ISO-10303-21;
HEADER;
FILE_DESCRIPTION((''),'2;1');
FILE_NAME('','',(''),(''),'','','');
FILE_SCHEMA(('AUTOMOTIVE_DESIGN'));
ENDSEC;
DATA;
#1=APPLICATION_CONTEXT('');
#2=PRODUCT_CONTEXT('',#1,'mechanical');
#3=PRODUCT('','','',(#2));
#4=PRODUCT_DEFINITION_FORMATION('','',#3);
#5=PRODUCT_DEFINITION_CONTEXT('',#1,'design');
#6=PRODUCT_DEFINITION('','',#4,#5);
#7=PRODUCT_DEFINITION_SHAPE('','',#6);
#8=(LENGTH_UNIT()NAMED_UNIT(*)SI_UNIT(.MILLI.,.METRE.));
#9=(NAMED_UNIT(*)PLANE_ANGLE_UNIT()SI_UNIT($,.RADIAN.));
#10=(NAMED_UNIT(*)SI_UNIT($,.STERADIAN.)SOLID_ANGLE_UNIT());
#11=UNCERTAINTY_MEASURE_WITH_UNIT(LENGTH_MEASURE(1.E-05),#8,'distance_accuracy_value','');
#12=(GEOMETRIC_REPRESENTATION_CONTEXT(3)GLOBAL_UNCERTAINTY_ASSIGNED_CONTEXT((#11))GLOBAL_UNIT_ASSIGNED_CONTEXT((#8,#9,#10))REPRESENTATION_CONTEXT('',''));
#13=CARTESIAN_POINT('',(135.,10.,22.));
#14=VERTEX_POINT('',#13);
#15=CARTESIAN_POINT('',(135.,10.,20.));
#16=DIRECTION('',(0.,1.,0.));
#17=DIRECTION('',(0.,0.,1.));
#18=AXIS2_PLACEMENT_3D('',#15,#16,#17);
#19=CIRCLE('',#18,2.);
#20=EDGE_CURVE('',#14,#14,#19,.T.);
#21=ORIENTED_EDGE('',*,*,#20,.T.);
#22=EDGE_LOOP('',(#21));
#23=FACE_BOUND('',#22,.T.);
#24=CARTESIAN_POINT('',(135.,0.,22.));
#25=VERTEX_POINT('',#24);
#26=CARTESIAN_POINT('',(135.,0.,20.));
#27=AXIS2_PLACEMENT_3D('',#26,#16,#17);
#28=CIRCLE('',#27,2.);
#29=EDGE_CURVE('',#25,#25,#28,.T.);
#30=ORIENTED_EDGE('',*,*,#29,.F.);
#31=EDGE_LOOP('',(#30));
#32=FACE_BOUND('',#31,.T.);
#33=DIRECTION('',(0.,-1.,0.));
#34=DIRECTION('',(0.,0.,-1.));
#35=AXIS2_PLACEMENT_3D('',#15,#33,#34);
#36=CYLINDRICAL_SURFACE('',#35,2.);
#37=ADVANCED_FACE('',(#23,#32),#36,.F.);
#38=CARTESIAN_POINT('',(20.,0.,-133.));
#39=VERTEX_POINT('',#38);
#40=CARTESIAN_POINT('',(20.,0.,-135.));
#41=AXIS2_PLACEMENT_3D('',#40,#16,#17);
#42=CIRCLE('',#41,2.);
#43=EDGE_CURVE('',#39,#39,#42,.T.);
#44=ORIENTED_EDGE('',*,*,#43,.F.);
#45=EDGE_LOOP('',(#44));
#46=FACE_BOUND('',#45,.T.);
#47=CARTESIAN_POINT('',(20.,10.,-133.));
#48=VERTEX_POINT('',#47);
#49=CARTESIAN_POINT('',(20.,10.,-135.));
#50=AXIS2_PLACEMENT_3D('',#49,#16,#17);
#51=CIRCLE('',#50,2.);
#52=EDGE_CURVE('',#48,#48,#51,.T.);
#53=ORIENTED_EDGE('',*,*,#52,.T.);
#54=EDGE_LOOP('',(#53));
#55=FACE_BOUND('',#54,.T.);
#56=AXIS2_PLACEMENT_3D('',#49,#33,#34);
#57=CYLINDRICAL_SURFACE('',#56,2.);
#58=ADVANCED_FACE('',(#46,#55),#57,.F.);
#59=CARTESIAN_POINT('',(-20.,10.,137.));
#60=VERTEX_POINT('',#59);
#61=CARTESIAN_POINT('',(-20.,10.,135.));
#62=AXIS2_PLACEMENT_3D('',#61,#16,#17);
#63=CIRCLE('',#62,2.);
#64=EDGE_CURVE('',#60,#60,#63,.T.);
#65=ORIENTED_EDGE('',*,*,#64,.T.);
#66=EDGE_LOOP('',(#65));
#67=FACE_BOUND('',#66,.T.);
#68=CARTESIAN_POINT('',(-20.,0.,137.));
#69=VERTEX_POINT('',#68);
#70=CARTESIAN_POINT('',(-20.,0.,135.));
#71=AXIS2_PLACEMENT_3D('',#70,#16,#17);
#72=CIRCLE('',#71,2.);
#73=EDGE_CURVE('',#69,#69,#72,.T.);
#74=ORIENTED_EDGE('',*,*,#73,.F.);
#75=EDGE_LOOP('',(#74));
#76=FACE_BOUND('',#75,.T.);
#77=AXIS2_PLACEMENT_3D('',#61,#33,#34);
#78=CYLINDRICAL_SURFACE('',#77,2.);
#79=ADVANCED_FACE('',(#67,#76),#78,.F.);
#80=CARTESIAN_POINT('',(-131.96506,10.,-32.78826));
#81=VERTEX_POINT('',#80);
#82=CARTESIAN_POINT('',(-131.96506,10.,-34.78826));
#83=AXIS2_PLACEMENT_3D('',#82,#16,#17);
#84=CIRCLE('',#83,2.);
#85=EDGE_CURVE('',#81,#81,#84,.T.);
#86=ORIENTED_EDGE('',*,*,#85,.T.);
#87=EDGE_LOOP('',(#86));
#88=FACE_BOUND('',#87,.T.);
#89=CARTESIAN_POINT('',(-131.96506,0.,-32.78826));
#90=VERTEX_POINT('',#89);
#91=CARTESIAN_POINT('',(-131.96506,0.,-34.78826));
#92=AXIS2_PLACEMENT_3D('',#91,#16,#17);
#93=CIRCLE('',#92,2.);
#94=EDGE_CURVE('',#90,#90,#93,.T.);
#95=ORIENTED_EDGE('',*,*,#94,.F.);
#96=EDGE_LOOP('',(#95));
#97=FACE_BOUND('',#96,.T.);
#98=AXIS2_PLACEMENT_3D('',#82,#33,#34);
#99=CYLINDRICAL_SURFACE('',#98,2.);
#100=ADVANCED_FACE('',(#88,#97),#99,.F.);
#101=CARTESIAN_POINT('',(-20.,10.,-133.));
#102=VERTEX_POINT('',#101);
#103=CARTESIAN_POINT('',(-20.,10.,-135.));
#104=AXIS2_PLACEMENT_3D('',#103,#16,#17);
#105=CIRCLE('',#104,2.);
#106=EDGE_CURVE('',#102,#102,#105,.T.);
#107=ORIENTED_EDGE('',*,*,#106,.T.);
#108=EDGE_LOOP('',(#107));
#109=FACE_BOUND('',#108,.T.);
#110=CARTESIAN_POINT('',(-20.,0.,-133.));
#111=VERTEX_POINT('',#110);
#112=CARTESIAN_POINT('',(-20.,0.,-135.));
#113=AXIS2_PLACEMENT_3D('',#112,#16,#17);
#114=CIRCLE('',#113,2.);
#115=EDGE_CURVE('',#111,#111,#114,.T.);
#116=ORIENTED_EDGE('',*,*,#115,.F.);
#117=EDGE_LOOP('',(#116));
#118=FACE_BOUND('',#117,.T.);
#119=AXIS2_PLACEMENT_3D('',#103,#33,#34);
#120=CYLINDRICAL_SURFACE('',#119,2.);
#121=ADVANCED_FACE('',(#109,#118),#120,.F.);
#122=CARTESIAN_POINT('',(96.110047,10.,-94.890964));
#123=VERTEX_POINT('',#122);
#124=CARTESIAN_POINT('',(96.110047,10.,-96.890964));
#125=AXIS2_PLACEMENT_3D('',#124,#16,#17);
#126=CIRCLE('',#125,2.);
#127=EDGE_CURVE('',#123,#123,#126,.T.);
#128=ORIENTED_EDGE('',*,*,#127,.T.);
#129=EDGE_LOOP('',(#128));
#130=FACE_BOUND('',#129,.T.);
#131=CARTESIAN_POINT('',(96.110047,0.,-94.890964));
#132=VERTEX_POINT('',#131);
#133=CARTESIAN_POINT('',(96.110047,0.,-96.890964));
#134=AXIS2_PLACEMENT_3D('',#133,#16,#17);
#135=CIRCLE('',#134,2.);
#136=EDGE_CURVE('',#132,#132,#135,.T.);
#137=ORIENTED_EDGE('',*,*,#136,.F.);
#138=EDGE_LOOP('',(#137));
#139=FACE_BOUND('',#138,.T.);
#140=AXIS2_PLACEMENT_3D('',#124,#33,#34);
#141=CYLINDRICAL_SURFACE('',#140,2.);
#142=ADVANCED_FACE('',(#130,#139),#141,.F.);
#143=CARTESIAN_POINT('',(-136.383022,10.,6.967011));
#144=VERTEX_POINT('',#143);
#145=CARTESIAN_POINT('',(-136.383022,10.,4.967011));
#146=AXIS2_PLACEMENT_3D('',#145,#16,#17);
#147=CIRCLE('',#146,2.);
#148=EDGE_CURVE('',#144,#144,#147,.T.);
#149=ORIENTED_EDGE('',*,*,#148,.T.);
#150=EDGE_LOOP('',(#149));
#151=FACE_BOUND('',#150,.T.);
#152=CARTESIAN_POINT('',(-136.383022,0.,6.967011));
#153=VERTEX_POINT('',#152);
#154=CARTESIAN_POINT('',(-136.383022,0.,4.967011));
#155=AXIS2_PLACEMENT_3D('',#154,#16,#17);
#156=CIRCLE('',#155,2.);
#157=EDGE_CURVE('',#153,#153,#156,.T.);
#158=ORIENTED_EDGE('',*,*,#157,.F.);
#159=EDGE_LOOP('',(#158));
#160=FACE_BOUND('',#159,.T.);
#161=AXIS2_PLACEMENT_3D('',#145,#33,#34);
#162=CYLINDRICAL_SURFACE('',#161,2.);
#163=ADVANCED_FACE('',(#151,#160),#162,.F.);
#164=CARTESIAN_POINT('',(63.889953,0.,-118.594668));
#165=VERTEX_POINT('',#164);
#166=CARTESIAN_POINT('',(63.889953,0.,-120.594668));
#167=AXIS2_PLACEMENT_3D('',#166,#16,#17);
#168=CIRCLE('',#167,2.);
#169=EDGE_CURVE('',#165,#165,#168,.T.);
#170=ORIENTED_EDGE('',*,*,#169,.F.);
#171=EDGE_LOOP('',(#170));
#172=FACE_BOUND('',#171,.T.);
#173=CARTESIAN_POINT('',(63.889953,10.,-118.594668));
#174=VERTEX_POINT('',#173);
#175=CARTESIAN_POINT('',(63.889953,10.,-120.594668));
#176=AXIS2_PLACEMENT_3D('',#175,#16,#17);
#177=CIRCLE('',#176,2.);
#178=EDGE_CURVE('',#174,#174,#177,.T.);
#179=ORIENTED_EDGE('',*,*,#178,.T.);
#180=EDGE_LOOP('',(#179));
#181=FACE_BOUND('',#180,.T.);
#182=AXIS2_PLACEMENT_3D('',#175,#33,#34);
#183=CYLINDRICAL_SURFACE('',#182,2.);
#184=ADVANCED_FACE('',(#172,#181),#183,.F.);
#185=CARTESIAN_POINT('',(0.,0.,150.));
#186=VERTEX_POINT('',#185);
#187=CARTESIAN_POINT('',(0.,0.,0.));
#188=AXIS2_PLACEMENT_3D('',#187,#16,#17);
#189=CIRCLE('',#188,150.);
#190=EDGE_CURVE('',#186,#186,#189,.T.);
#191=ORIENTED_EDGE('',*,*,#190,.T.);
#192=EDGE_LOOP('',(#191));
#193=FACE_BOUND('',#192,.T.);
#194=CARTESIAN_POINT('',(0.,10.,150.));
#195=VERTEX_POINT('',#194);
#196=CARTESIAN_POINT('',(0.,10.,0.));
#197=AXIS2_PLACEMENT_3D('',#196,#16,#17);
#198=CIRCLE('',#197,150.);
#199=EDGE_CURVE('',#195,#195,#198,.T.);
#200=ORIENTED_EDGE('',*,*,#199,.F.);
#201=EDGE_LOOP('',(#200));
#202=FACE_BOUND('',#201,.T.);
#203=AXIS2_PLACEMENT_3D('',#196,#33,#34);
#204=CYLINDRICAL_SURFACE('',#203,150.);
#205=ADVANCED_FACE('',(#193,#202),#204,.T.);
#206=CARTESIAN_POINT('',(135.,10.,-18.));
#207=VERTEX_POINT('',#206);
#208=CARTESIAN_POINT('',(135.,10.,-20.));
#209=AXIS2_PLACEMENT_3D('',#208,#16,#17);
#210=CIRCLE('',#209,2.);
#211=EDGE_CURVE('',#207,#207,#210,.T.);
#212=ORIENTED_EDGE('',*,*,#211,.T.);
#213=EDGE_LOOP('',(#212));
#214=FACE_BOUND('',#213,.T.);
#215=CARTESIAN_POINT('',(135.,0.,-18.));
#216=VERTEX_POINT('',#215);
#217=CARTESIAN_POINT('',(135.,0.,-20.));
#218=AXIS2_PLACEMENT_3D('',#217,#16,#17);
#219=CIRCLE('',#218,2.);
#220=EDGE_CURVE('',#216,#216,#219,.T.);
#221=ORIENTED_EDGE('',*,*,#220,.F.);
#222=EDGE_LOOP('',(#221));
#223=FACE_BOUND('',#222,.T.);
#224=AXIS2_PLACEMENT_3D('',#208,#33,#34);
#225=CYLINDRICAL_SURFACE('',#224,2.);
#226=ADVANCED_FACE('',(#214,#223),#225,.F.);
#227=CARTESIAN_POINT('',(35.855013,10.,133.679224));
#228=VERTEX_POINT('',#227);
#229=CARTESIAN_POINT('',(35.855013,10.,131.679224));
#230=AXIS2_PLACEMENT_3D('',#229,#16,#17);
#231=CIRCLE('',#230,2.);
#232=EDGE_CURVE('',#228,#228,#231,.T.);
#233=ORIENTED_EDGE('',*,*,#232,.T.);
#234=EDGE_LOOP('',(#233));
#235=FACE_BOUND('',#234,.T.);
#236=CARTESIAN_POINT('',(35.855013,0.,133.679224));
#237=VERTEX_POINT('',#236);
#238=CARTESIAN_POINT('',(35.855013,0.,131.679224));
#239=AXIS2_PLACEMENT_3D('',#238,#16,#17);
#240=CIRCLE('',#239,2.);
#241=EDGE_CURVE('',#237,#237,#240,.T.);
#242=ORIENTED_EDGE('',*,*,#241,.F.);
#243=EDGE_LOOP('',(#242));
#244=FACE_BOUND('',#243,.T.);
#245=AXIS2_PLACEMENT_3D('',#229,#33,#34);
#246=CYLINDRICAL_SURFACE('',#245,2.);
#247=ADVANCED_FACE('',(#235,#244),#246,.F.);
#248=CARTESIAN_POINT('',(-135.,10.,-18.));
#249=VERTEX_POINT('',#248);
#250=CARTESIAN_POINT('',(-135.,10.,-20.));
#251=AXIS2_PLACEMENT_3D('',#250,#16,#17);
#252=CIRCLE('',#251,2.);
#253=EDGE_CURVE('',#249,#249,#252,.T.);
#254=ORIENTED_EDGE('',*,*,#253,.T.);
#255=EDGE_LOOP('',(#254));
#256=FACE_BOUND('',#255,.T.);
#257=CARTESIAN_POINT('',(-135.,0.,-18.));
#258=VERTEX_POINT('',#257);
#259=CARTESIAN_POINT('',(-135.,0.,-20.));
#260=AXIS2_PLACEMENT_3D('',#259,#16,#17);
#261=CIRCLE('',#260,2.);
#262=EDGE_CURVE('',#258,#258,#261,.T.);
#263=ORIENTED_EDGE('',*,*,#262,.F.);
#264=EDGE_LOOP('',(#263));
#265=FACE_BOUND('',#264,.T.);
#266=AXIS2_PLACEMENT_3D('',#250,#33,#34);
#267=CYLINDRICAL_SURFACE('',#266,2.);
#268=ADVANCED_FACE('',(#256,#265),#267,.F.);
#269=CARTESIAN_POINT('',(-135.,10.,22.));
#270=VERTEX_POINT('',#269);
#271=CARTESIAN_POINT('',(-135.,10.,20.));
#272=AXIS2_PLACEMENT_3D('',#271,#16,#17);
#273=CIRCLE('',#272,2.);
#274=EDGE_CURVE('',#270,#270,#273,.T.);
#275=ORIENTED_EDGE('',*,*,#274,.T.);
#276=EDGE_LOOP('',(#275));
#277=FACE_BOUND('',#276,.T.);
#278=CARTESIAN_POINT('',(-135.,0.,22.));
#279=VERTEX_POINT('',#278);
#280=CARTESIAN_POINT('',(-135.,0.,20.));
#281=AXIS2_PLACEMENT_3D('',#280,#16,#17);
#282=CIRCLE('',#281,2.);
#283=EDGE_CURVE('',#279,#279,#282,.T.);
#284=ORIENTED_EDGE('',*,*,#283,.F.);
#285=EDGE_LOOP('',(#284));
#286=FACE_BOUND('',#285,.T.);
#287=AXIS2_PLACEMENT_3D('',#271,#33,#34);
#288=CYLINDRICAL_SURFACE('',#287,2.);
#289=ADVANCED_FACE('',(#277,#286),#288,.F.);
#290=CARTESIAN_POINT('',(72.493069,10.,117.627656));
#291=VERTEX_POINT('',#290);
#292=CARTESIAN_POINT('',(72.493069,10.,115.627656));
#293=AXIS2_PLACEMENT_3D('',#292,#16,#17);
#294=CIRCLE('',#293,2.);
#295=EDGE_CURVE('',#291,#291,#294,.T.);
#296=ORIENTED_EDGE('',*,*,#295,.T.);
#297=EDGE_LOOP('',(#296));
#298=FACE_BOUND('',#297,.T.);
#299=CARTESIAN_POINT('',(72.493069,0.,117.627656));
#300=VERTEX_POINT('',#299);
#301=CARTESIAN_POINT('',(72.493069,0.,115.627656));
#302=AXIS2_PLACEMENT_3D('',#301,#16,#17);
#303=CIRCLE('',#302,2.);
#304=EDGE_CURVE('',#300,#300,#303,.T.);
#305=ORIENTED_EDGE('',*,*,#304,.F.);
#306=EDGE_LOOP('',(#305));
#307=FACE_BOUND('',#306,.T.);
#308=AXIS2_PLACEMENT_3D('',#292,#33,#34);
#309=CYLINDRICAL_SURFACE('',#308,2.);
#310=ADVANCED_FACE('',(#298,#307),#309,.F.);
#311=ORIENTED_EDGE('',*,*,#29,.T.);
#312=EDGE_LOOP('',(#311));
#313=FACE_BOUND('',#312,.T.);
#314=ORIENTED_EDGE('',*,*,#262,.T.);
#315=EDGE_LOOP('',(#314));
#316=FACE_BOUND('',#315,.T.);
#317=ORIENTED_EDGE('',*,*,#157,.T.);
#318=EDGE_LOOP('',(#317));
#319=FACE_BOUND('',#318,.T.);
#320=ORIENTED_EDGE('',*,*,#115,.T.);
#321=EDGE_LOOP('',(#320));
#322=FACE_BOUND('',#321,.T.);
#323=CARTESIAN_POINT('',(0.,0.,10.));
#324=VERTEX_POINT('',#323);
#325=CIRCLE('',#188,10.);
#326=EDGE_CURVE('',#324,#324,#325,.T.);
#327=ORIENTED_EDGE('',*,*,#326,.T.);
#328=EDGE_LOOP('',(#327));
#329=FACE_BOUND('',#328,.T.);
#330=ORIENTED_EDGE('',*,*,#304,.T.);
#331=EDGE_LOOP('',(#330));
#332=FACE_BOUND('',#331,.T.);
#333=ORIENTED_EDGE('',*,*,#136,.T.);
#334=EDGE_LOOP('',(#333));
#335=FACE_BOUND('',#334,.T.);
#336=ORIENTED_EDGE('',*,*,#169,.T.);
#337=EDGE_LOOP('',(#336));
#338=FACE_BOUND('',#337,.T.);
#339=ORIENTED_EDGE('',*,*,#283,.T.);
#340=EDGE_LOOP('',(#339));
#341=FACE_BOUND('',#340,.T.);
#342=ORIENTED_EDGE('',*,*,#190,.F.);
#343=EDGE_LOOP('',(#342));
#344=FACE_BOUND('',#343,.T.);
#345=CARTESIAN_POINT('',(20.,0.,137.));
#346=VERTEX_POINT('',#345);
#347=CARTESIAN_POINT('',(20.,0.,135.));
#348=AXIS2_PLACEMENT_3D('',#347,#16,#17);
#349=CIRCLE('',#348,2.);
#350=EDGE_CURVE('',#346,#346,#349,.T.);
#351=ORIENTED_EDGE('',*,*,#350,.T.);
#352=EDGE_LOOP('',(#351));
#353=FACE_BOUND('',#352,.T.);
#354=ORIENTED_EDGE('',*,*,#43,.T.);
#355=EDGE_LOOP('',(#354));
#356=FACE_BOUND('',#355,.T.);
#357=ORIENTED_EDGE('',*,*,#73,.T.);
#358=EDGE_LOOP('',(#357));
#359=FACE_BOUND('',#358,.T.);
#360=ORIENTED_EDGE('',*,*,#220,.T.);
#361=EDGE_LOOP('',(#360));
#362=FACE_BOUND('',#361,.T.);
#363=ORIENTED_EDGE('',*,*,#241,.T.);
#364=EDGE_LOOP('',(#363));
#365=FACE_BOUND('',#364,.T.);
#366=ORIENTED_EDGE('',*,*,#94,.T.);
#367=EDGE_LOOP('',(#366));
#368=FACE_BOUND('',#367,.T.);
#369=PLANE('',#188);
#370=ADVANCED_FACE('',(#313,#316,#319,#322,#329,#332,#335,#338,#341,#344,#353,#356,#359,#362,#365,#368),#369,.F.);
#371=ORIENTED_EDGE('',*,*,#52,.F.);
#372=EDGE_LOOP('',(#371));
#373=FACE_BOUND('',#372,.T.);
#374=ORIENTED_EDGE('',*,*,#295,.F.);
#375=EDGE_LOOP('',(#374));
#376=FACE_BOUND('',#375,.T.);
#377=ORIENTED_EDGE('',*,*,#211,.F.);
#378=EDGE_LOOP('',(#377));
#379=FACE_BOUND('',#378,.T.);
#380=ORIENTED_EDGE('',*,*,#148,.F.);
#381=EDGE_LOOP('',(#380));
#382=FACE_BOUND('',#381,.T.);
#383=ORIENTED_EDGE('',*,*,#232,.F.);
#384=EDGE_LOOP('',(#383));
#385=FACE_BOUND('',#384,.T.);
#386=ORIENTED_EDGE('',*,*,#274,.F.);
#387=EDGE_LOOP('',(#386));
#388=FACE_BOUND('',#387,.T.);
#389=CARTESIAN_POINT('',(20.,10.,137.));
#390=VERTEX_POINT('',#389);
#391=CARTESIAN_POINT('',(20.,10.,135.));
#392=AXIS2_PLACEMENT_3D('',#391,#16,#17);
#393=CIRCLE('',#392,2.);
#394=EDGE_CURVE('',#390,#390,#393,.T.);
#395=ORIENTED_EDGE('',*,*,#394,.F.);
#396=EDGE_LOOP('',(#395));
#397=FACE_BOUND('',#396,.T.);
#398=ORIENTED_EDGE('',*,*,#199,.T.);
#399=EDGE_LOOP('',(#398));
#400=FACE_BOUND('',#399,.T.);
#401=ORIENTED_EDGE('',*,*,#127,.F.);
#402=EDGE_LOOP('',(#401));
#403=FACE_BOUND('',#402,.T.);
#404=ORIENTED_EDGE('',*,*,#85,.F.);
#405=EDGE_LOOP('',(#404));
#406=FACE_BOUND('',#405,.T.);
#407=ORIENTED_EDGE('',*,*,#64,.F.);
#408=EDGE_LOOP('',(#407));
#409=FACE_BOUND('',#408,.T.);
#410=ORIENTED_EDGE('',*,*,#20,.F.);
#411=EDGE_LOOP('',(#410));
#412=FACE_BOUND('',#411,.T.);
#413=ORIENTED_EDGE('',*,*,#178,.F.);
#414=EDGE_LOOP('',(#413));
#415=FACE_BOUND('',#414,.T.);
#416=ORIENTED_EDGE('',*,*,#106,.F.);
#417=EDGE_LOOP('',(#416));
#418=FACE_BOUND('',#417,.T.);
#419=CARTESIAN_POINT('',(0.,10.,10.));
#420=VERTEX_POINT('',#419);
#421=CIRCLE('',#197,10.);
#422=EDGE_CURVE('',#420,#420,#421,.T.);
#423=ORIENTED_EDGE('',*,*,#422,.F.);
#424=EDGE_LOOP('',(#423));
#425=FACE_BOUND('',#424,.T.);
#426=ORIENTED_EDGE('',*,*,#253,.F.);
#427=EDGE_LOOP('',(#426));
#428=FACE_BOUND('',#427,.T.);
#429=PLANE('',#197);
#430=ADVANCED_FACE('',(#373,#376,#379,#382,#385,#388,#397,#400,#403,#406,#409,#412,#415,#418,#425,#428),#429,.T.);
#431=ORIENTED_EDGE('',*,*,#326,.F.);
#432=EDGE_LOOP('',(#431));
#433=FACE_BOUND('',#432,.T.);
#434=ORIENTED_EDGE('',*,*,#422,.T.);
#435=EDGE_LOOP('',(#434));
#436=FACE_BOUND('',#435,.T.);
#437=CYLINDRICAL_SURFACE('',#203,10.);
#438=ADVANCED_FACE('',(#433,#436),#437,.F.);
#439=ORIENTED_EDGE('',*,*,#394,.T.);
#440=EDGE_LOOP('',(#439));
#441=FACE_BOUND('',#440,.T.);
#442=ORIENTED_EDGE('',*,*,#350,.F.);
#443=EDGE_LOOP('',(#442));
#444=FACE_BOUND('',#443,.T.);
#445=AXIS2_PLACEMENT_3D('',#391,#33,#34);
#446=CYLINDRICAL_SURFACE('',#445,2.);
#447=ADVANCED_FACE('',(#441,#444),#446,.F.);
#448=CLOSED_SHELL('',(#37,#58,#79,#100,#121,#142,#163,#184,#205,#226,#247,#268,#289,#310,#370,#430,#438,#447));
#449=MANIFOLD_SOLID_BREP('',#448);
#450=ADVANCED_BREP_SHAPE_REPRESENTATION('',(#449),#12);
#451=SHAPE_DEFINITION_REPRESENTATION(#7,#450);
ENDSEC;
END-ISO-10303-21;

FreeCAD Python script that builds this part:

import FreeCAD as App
import Part
import Sketcher

V = App.Vector

doc = App.newDocument("Part")
body = doc.addObject("PartDesign::Body", "Body")

# Sketch on XZ plane
sketch1 = body.newObject("Sketcher::SketchObject", "Sketch")
sketch1.AttachmentSupport = (doc.getObject("XZ_Plane"), [""])
sketch1.MapMode = "FlatFace"
sketch1.addGeometry([
    Part.Circle(V(0, 0, 0), V(0, 0, 1), 150),  # 0
    Part.Circle(V(-20, 135, 0), V(0, 0, 1), 2),  # 1
    Part.Circle(V(-135, 20, 0), V(0, 0, 1), 2),  # 2
    Part.Circle(V(-136.4, 5, 0), V(0, 0, 1), 2),  # 3
    Part.Circle(V(20, 135, 0), V(0, 0, 1), 2),  # 4
    Part.Circle(V(35.9, 131.7, 0), V(0, 0, 1), 2),  # 5
    Part.Circle(V(72.5, 115.6, 0), V(0, 0, 1), 2),  # 6
    Part.Circle(V(135, 20, 0), V(0, 0, 1), 2),  # 7
    Part.Circle(V(-135, -20, 0), V(0, 0, 1), 2),  # 8
    Part.Circle(V(-132, -34.8, 0), V(0, 0, 1), 2),  # 9
    Part.Circle(V(-20, -135, 0), V(0, 0, 1), 2),  # 10
    Part.Circle(V(0, 0, 0), V(0, 0, 1), 10),  # 11
    Part.Circle(V(135, -20, 0), V(0, 0, 1), 2),  # 12
    Part.Circle(V(20, -135, 0), V(0, 0, 1), 2),  # 13
    Part.Circle(V(63.9, -120.6, 0), V(0, 0, 1), 2),  # 14
    Part.Circle(V(96.1, -96.9, 0), V(0, 0, 1), 2),  # 15
], False)
sketch1.addConstraint([
    Sketcher.Constraint("Coincident", 0, 3, -1, 1),
    Sketcher.Constraint("Coincident", 11, 3, -1, 1),
    Sketcher.Constraint("Equal", 1, 2),
    Sketcher.Constraint("Equal", 2, 3),
    Sketcher.Constraint("Equal", 3, 4),
    Sketcher.Constraint("Equal", 4, 5),
    Sketcher.Constraint("Equal", 5, 6),
    Sketcher.Constraint("Equal", 6, 7),
    Sketcher.Constraint("Equal", 7, 8),
    Sketcher.Constraint("Equal", 8, 9),
    Sketcher.Constraint("Equal", 9, 10),
    Sketcher.Constraint("Equal", 10, 12),
    Sketcher.Constraint("Equal", 12, 13),
    Sketcher.Constraint("Equal", 13, 14),
    Sketcher.Constraint("Equal", 14, 15),
    Sketcher.Constraint("Symmetric", 7, 3, 8, 3, -1, 1),
    Sketcher.Constraint("Symmetric", 4, 3, 10, 3, -1, 1),
    Sketcher.Constraint("Symmetric", 2, 3, 12, 3, -1, 1),
    Sketcher.Constraint("Symmetric", 1, 3, 13, 3, -1, 1),
    Sketcher.Constraint("Symmetric", 1, 3, 4, 3, -2),
    Sketcher.Constraint("Symmetric", 2, 3, 7, 3, -2),
    Sketcher.Constraint("Diameter", 0, 300.0),
    Sketcher.Constraint("Diameter", 1, 4.0),
    Sketcher.Constraint("Diameter", 11, 20.0),
    Sketcher.Constraint("DistanceX", 1, 3, -1, 1, 20.0),
    Sketcher.Constraint("DistanceY", -1, 1, 1, 3, 135.0),
    Sketcher.Constraint("DistanceX", 2, 3, -1, 1, 135.0),
    Sketcher.Constraint("DistanceY", -1, 1, 2, 3, 20.0),
    Sketcher.Constraint("DistanceY", -1, 1, 3, 3, 4.967011),
    Sketcher.Constraint("DistanceX", -1, 1, 6, 3, 72.493069),
    Sketcher.Constraint("DistanceX", 9, 3, -1, 1, 131.96506),
    Sketcher.Constraint("DistanceY", 9, 3, -1, 1, 34.78826),
    Sketcher.Constraint("DistanceX", 3, 3, -1, 1, 136.383022),
    Sketcher.Constraint("DistanceX", -1, 1, 5, 3, 35.855013),
    Sketcher.Constraint("DistanceY", -1, 1, 5, 3, 131.679224),
    Sketcher.Constraint("DistanceY", -1, 1, 6, 3, 115.627656),
    Sketcher.Constraint("DistanceX", -1, 1, 14, 3, 63.889953),
    Sketcher.Constraint("DistanceY", 14, 3, -1, 1, 120.594668),
    Sketcher.Constraint("DistanceX", -1, 1, 15, 3, 96.110047),
    Sketcher.Constraint("DistanceY", 15, 3, -1, 1, 96.890964),
])
pad1 = body.newObject("PartDesign::Pad", "Pad")
pad1.Profile = sketch1
pad1.Length = 10
pad1.Reversed = True

doc.recompute()
